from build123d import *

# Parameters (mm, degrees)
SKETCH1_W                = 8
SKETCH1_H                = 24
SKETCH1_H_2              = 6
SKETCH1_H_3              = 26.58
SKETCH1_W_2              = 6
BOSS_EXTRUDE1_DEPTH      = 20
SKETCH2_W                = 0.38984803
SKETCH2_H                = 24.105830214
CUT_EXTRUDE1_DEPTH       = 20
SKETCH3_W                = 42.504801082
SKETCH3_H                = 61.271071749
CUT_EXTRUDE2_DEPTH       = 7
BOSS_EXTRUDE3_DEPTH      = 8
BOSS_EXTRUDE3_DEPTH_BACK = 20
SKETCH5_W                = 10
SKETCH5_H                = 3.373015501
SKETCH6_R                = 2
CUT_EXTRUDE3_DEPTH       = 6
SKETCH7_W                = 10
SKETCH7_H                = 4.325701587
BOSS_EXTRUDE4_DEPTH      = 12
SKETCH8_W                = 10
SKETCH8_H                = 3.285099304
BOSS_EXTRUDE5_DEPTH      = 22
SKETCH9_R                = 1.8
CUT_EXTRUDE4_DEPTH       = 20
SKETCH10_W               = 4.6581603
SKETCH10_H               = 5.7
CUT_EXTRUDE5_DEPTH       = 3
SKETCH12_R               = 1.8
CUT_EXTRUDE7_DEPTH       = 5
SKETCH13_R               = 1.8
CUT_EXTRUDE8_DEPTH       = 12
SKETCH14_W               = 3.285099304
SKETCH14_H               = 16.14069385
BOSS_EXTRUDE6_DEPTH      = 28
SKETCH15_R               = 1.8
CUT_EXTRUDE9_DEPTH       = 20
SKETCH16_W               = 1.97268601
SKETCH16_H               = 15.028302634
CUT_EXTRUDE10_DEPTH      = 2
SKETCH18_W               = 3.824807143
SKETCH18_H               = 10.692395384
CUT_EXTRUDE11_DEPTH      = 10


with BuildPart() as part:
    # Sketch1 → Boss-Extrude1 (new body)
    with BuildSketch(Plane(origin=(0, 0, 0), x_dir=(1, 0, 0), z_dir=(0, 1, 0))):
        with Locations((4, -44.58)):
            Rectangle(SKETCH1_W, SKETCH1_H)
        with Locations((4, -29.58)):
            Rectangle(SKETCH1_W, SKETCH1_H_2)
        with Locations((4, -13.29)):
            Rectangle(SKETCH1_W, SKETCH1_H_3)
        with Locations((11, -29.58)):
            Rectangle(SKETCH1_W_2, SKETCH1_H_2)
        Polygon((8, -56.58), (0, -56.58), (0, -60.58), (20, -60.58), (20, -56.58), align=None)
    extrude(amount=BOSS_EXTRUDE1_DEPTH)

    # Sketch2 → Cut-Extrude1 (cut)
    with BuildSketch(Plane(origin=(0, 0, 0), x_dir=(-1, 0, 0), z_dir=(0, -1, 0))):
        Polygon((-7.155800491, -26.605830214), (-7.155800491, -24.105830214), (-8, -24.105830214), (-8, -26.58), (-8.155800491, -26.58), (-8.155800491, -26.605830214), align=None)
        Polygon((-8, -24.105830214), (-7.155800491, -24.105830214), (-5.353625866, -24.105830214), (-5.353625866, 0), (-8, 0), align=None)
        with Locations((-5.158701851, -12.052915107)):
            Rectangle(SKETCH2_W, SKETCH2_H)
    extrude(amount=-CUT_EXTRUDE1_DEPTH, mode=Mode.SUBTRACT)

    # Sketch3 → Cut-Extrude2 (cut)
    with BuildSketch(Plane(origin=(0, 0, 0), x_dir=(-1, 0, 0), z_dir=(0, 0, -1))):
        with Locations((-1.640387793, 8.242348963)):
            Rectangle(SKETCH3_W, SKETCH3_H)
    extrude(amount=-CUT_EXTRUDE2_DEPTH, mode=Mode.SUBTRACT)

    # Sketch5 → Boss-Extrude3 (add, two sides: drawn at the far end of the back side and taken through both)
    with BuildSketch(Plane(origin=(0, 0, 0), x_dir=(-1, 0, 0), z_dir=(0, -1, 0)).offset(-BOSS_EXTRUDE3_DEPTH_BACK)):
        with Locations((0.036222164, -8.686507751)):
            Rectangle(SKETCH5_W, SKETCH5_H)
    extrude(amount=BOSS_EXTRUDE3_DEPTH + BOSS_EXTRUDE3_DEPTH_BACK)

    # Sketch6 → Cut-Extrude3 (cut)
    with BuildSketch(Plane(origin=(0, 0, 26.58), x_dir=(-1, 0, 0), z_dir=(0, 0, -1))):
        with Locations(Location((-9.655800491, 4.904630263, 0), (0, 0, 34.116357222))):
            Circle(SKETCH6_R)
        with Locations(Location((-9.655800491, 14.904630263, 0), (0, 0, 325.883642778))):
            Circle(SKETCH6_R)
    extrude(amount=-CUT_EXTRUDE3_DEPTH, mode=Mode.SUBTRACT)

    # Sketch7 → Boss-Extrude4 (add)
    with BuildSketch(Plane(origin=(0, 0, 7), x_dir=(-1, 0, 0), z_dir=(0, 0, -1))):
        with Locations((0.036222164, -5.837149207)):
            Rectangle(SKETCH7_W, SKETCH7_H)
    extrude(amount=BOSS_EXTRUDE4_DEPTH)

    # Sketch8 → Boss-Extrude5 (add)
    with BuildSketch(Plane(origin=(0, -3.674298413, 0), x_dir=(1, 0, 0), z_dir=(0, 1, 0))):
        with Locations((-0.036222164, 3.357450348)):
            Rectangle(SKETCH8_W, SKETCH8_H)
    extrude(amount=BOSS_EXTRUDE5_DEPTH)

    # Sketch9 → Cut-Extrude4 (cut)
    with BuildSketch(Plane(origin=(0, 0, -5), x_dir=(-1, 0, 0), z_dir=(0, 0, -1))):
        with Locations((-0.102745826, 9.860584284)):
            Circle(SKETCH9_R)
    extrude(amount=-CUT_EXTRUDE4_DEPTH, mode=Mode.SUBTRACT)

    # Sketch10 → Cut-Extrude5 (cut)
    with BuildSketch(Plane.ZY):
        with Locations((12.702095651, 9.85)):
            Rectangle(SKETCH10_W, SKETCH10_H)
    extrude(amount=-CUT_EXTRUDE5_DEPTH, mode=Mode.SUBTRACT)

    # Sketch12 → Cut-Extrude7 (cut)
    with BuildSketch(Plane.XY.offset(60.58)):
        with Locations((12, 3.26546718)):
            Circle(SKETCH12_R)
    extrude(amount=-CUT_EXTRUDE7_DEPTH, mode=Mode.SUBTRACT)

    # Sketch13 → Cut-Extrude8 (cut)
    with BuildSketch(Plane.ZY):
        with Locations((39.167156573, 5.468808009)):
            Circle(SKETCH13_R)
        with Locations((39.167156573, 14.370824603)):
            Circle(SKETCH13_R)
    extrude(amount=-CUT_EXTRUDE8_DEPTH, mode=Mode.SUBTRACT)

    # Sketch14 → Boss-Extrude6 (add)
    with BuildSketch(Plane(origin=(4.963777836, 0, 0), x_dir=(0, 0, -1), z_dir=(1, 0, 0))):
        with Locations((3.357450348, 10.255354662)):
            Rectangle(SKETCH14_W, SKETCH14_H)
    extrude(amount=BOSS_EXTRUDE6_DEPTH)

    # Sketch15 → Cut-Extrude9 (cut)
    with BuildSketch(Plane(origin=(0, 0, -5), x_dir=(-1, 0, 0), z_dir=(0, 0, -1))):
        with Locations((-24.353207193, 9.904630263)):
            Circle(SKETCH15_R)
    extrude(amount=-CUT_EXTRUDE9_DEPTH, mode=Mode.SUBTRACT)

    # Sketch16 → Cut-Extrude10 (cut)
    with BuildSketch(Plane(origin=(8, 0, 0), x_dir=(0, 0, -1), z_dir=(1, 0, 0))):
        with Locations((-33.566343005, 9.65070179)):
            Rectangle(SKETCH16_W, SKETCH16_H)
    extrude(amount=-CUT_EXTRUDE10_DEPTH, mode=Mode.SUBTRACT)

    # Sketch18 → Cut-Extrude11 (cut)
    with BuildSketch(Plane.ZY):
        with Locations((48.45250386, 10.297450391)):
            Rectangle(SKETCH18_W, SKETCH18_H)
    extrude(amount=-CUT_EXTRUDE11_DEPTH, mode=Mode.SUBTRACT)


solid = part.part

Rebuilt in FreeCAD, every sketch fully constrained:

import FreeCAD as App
import Part
import Sketcher

V = App.Vector
Q = App.Units.Quantity

doc = App.newDocument("Part")
body = doc.addObject("PartDesign::Body", "Body")

sketch1 = doc.addObject("Sketcher::SketchObject", "Sketch")
body.addObject(sketch1)
sketch1.AttachmentSupport = (doc.XZ_Plane, [""])
sketch1.MapMode = "FlatFace"
sketch1.addGeometry([
    Part.LineSegment(V(8, 56.58, 0), V(8, 32.58, 0)),
    Part.LineSegment(V(8, 32.58, 0), V(14, 32.58, 0)),
    Part.LineSegment(V(14, 32.58, 0), V(14, 26.58, 0)),
    Part.LineSegment(V(14, 26.58, 0), V(8, 26.58, 0)),
    Part.LineSegment(V(8, 26.58, 0), V(8, 0, 0)),
    Part.LineSegment(V(8, 0, 0), V(0, 0, 0)),
    Part.LineSegment(V(0, 0, 0), V(0, 60.58, 0)),
    Part.LineSegment(V(0, 60.58, 0), V(20, 60.58, 0)),
    Part.LineSegment(V(20, 60.58, 0), V(20, 56.58, 0)),
    Part.LineSegment(V(20, 56.58, 0), V(8, 56.58, 0)),
], False)
sketch1.addConstraint([
    Sketcher.Constraint("Coincident", 0, 2, 1, 1),
    Sketcher.Constraint("Coincident", 1, 2, 2, 1),
    Sketcher.Constraint("Coincident", 2, 2, 3, 1),
    Sketcher.Constraint("Coincident", 3, 2, 4, 1),
    Sketcher.Constraint("Coincident", 4, 2, 5, 1),
    Sketcher.Constraint("Coincident", 5, 2, 6, 1),
    Sketcher.Constraint("Coincident", 6, 2, 7, 1),
    Sketcher.Constraint("Coincident", 7, 2, 8, 1),
    Sketcher.Constraint("Coincident", 8, 2, 9, 1),
    Sketcher.Constraint("Coincident", 9, 2, 0, 1),
    Sketcher.Constraint("Vertical", 0),
    Sketcher.Constraint("Horizontal", 1),
    Sketcher.Constraint("Vertical", 2),
    Sketcher.Constraint("Horizontal", 3),
    Sketcher.Constraint("Vertical", 4),
    Sketcher.Constraint("Horizontal", 5),
    Sketcher.Constraint("Vertical", 6),
    Sketcher.Constraint("Horizontal", 7),
    Sketcher.Constraint("Vertical", 8),
    Sketcher.Constraint("Horizontal", 9),
    Sketcher.Constraint("Coincident", 5, 2, -1, 1),
    Sketcher.Constraint("Vertical", 0, 2, 3, 2),
    Sketcher.Constraint("Equal", 3, 2),
    Sketcher.Constraint("DistanceX", 1, 1, 1, 2, Q("6 mm")),
    Sketcher.Constraint("DistanceX", 5, 2, 5, 1, Q("8 mm")),
    Sketcher.Constraint("DistanceX", 7, 1, 7, 2, Q("20 mm")),
    Sketcher.Constraint("DistanceY", 0, 2, 0, 1, Q("24 mm")),
    Sketcher.Constraint("DistanceY", 8, 2, 8, 1, Q("4 mm")),
    Sketcher.Constraint("DistanceY", 4, 2, 4, 1, Q("26.58 mm")),
])
pad1 = doc.addObject("PartDesign::Pad", "Pad")
body.addObject(pad1)
pad1.Profile = sketch1
pad1.Length = 20
pad1.Reversed = True

sketch2 = doc.addObject("Sketcher::SketchObject", "Sketch001")
body.addObject(sketch2)
sketch2.AttachmentSupport = (doc.XZ_Plane, [""])
sketch2.MapMode = "FlatFace"
sketch2.addGeometry([
    Part.LineSegment(V(7.1558, 26.60583, 0), V(7.1558, 24.10583, 0)),
    Part.LineSegment(V(7.1558, 24.10583, 0), V(4.963778, 24.10583, 0)),
    Part.LineSegment(V(4.963778, 24.10583, 0), V(4.963778, 0, 0)),
    Part.LineSegment(V(4.963778, 0, 0), V(8, 0, 0)),
    Part.LineSegment(V(8, 0, 0), V(8, 26.58, 0)),
    Part.LineSegment(V(8, 26.58, 0), V(8.1558, 26.58, 0)),
    Part.LineSegment(V(8.1558, 26.58, 0), V(8.1558, 26.60583, 0)),
    Part.LineSegment(V(8.1558, 26.60583, 0), V(7.1558, 26.60583, 0)),
], False)
sketch2.addConstraint([
    Sketcher.Constraint("Coincident", 0, 2, 1, 1),
    Sketcher.Constraint("Coincident", 1, 2, 2, 1),
    Sketcher.Constraint("Coincident", 2, 2, 3, 1),
    Sketcher.Constraint("Coincident", 3, 2, 4, 1),
    Sketcher.Constraint("Coincident", 4, 2, 5, 1),
    Sketcher.Constraint("Coincident", 5, 2, 6, 1),
    Sketcher.Constraint("Coincident", 6, 2, 7, 1),
    Sketcher.Constraint("Coincident", 7, 2, 0, 1),
    Sketcher.Constraint("Vertical", 0),
    Sketcher.Constraint("Horizontal", 1),
    Sketcher.Constraint("Vertical", 2),
    Sketcher.Constraint("Horizontal", 3),
    Sketcher.Constraint("Vertical", 4),
    Sketcher.Constraint("Horizontal", 5),
    Sketcher.Constraint("Vertical", 6),
    Sketcher.Constraint("Horizontal", 7),
    Sketcher.Constraint("PointOnObject", 2, 2, -1),
    Sketcher.Constraint("DistanceX", 7, 2, 7, 1, Q("1 mm")),
    Sketcher.Constraint("DistanceY", 0, 2, 0, 1, Q("2.5 mm")),
    Sketcher.Constraint("DistanceX", -1, 1, 3, 2, Q("8 mm")),
    Sketcher.Constraint("DistanceY", 4, 1, 4, 2, Q("26.58 mm")),
    Sketcher.Constraint("DistanceX", 5, 1, 5, 2, Q("0.1558 mm")),
    Sketcher.Constraint("DistanceY", 2, 2, 2, 1, Q("24.10583 mm")),
    Sketcher.Constraint("DistanceX", 1, 2, 1, 1, Q("2.192023 mm")),
])
pocket1 = doc.addObject("PartDesign::Pocket", "Pocket")
body.addObject(pocket1)
pocket1.Profile = sketch2
pocket1.Length = 20

sketch3 = doc.addObject("Sketcher::SketchObject", "Sketch002")
body.addObject(sketch3)
sketch3.AttachmentSupport = (doc.XY_Plane, [""])
sketch3.MapMode = "FlatFace"
sketch3.addGeometry([
    Part.LineSegment(V(22.892788, 38.877885, 0), V(22.892788, -22.393187, 0)),
    Part.LineSegment(V(22.892788, -22.393187, 0), V(-19.612013, -22.393187, 0)),
    Part.LineSegment(V(-19.612013, -22.393187, 0), V(-19.612013, 38.877885, 0)),
    Part.LineSegment(V(-19.612013, 38.877885, 0), V(22.892788, 38.877885, 0)),
], False)
sketch3.addConstraint([
    Sketcher.Constraint("Coincident", 0, 2, 1, 1),
    Sketcher.Constraint("Coincident", 1, 2, 2, 1),
    Sketcher.Constraint("Coincident", 2, 2, 3, 1),
    Sketcher.Constraint("Coincident", 3, 2, 0, 1),
    Sketcher.Constraint("Vertical", 0),
    Sketcher.Constraint("Horizontal", 1),
    Sketcher.Constraint("Vertical", 2),
    Sketcher.Constraint("Horizontal", 3),
    Sketcher.Constraint("DistanceX", 1, 2, 1, 1, Q("42.504801 mm")),
    Sketcher.Constraint("DistanceY", 0, 2, 0, 1, Q("61.271072 mm")),
    Sketcher.Constraint("DistanceX", -1, 1, 0, 2, Q("22.892788 mm")),
    Sketcher.Constraint("DistanceY", 0, 2, -1, 1, Q("22.393187 mm")),
])
pocket2 = doc.addObject("PartDesign::Pocket", "Pocket001")
body.addObject(pocket2)
pocket2.Profile = sketch3
pocket2.Length = 7
pocket2.Reversed = True

sketch4 = doc.addObject("Sketcher::SketchObject", "Sketch003")
body.addObject(sketch4)
sketch4.AttachmentSupport = (doc.XZ_Plane, [""])
sketch4.MapMode = "FlatFace"
sketch4.addGeometry([
    Part.LineSegment(V(4.963778, 7, 0), V(4.963778, 10.373016, 0)),
    Part.LineSegment(V(4.963778, 10.373016, 0), V(-5.036222, 10.373016, 0)),
    Part.LineSegment(V(-5.036222, 10.373016, 0), V(-5.036222, 7, 0)),
    Part.LineSegment(V(-5.036222, 7, 0), V(4.963778, 7, 0)),
], False)
sketch4.addConstraint([
    Sketcher.Constraint("Coincident", 0, 2, 1, 1),
    Sketcher.Constraint("Coincident", 1, 2, 2, 1),
    Sketcher.Constraint("Coincident", 2, 2, 3, 1),
    Sketcher.Constraint("Coincident", 3, 2, 0, 1),
    Sketcher.Constraint("Vertical", 0),
    Sketcher.Constraint("Horizontal", 1),
    Sketcher.Constraint("Vertical", 2),
    Sketcher.Constraint("Horizontal", 3),
    Sketcher.Constraint("DistanceX", 1, 2, 1, 1, Q("10 mm")),
    Sketcher.Constraint("DistanceY", -1, 1, 2, 2, Q("7 mm")),
    Sketcher.Constraint("DistanceY", 0, 1, 0, 2, Q("3.373016 mm")),
    Sketcher.Constraint("DistanceX", -1, 1, 0, 2, Q("4.963778 mm")),
])
pad2 = doc.addObject("PartDesign::Pad", "Pad001")
body.addObject(pad2)
pad2.Profile = sketch4
pad2.Type = "TwoLengths"
pad2.Length = 8
pad2.Length2 = 20

sketch5 = doc.addObject("Sketcher::SketchObject", "Sketch004")
body.addObject(sketch5)
sketch5.AttachmentSupport = (doc.XY_Plane, [""])
sketch5.MapMode = "FlatFace"
sketch5.AttachmentOffset = App.Placement(V(0, 0, 26.58), App.Rotation())
sketch5.addGeometry([
    Part.Circle(V(9.6558, 4.90463, 0), V(0, 0, 1), 2),
    Part.Circle(V(9.6558, 14.90463, 0), V(0, 0, 1), 2),
], False)
sketch5.addConstraint([
    Sketcher.Constraint("Equal", 0, 1),
    Sketcher.Constraint("Vertical", 0, 3, 1, 3),
    Sketcher.Constraint("Diameter", 0, Q("4 mm")),
    Sketcher.Constraint("DistanceY", 0, 3, 1, 3, Q("10 mm")),
    Sketcher.Constraint("DistanceX", -1, 1, 0, 3, Q("9.6558 mm")),
    Sketcher.Constraint("DistanceY", -1, 1, 0, 3, Q("4.90463 mm")),
])
pocket3 = doc.addObject("PartDesign::Pocket", "Pocket002")
body.addObject(pocket3)
pocket3.Profile = sketch5
pocket3.Length = 6
pocket3.Reversed = True

sketch6 = doc.addObject("Sketcher::SketchObject", "Sketch005")
body.addObject(sketch6)
sketch6.AttachmentSupport = (doc.XY_Plane, [""])
sketch6.MapMode = "FlatFace"
sketch6.AttachmentOffset = App.Placement(V(0, 0, 7), App.Rotation())
sketch6.addGeometry([
    Part.LineSegment(V(4.963778, -3.674298, 0), V(4.963778, -8, 0)),
    Part.LineSegment(V(4.963778, -8, 0), V(-5.036222, -8, 0)),
    Part.LineSegment(V(-5.036222, -8, 0), V(-5.036222, -3.674298, 0)),
    Part.LineSegment(V(-5.036222, -3.674298, 0), V(4.963778, -3.674298, 0)),
], False)
sketch6.addConstraint([
    Sketcher.Constraint("Coincident", 0, 2, 1, 1),
    Sketcher.Constraint("Coincident", 1, 2, 2, 1),
    Sketcher.Constraint("Coincident", 2, 2, 3, 1),
    Sketcher.Constraint("Coincident", 3, 2, 0, 1),
    Sketcher.Constraint("Vertical", 0),
    Sketcher.Constraint("Horizontal", 1),
    Sketcher.Constraint("Vertical", 2),
    Sketcher.Constraint("Horizontal", 3),
    Sketcher.Constraint("DistanceX", 1, 2, 1, 1, Q("10 mm")),
    Sketcher.Constraint("DistanceY", 0, 2, -1, 1, Q("8 mm")),
    Sketcher.Constraint("DistanceY", 0, 2, 0, 1, Q("4.325702 mm")),
    Sketcher.Constraint("DistanceX", -1, 1, 0, 2, Q("4.963778 mm")),
])
pad3 = doc.addObject("PartDesign::Pad", "Pad002")
body.addObject(pad3)
pad3.Profile = sketch6
pad3.Length = 12
pad3.Reversed = True

sketch7 = doc.addObject("Sketcher::SketchObject", "Sketch006")
body.addObject(sketch7)
sketch7.AttachmentSupport = (doc.XZ_Plane, [""])
sketch7.MapMode = "FlatFace"
sketch7.AttachmentOffset = App.Placement(V(0, 0, 3.674298), App.Rotation())
sketch7.addGeometry([
    Part.LineSegment(V(-5.036222, -5, 0), V(-5.036222, -1.714901, 0)),
    Part.LineSegment(V(-5.036222, -1.714901, 0), V(4.963778, -1.714901, 0)),
    Part.LineSegment(V(4.963778, -1.714901, 0), V(4.963778, -5, 0)),
    Part.LineSegment(V(4.963778, -5, 0), V(-5.036222, -5, 0)),
], False)
sketch7.addConstraint([
    Sketcher.Constraint("Coincident", 0, 2, 1, 1),
    Sketcher.Constraint("Coincident", 1, 2, 2, 1),
    Sketcher.Constraint("Coincident", 2, 2, 3, 1),
    Sketcher.Constraint("Coincident", 3, 2, 0, 1),
    Sketcher.Constraint("Vertical", 0),
    Sketcher.Constraint("Horizontal", 1),
    Sketcher.Constraint("Vertical", 2),
    Sketcher.Constraint("Horizontal", 3),
    Sketcher.Constraint("DistanceX", 1, 1, 1, 2, Q("10 mm")),
    Sketcher.Constraint("DistanceY", 2, 2, -1, 1, Q("5 mm")),
    Sketcher.Constraint("DistanceY", 0, 1, 0, 2, Q("3.285099 mm")),
    Sketcher.Constraint("DistanceX", 0, 2, -1, 1, Q("5.036222 mm")),
])
pad4 = doc.addObject("PartDesign::Pad", "Pad003")
body.addObject(pad4)
pad4.Profile = sketch7
pad4.Length = 22
pad4.Reversed = True

sketch8 = doc.addObject("Sketcher::SketchObject", "Sketch007")
body.addObject(sketch8)
sketch8.AttachmentSupport = (doc.XY_Plane, [""])
sketch8.MapMode = "FlatFace"
sketch8.AttachmentOffset = App.Placement(V(0, 0, -5), App.Rotation())
sketch8.addGeometry(Part.Circle(V(0.102746, 9.860584, 0), V(0, 0, 1), 1.8), False)
sketch8.addConstraint([
    Sketcher.Constraint("Diameter", 0, Q("3.6 mm")),
    Sketcher.Constraint("DistanceX", -1, 1, 0, 3, Q("0.102746 mm")),
    Sketcher.Constraint("DistanceY", -1, 1, 0, 3, Q("9.860584 mm")),
])
pocket4 = doc.addObject("PartDesign::Pocket", "Pocket003")
body.addObject(pocket4)
pocket4.Profile = sketch8
pocket4.Length = 20
pocket4.Reversed = True

sketch9 = doc.addObject("Sketcher::SketchObject", "Sketch008")
body.addObject(sketch9)
sketch9.AttachmentSupport = (doc.YZ_Plane, [""])
sketch9.MapMode = "FlatFace"
sketch9.addGeometry([
    Part.LineSegment(V(12.7, 10.373016, 0), V(7, 10.373016, 0)),
    Part.LineSegment(V(7, 10.373016, 0), V(7, 15.031176, 0)),
    Part.LineSegment(V(7, 15.031176, 0), V(12.7, 15.031176, 0)),
    Part.LineSegment(V(12.7, 15.031176, 0), V(12.7, 10.373016, 0)),
], False)
sketch9.addConstraint([
    Sketcher.Constraint("Coincident", 0, 2, 1, 1),
    Sketcher.Constraint("Coincident", 1, 2, 2, 1),
    Sketcher.Constraint("Coincident", 2, 2, 3, 1),
    Sketcher.Constraint("Coincident", 3, 2, 0, 1),
    Sketcher.Constraint("Horizontal", 0),
    Sketcher.Constraint("Vertical", 1),
    Sketcher.Constraint("Horizontal", 2),
    Sketcher.Constraint("Vertical", 3),
    Sketcher.Constraint("DistanceX", 0, 2, 0, 1, Q("5.7 mm")),
    Sketcher.Constraint("DistanceX", -1, 1, 0, 2, Q("7 mm")),
    Sketcher.Constraint("DistanceY", 1, 1, 1, 2, Q("4.65816 mm")),
    Sketcher.Constraint("DistanceY", -1, 1, 0, 2, Q("10.373016 mm")),
])
pocket5 = doc.addObject("PartDesign::Pocket", "Pocket004")
body.addObject(pocket5)
pocket5.Profile = sketch9
pocket5.Length = 3
pocket5.Reversed = True

sketch10 = doc.addObject("Sketcher::SketchObject", "Sketch009")
body.addObject(sketch10)
sketch10.AttachmentSupport = (doc.XY_Plane, [""])
sketch10.MapMode = "FlatFace"
sketch10.AttachmentOffset = App.Placement(V(0, 0, 60.58), App.Rotation())
sketch10.addGeometry(Part.Circle(V(12, 3.265467, 0), V(0, 0, 1), 1.8), False)
sketch10.addConstraint([
    Sketcher.Constraint("Diameter", 0, Q("3.6 mm")),
    Sketcher.Constraint("DistanceX", -1, 1, 0, 3, Q("12 mm")),
    Sketcher.Constraint("DistanceY", -1, 1, 0, 3, Q("3.265467 mm")),
])
pocket6 = doc.addObject("PartDesign::Pocket", "Pocket005")
body.addObject(pocket6)
pocket6.Profile = sketch10
pocket6.Length = 5

sketch11 = doc.addObject("Sketcher::SketchObject", "Sketch010")
body.addObject(sketch11)
sketch11.AttachmentSupport = (doc.YZ_Plane, [""])
sketch11.MapMode = "FlatFace"
sketch11.addGeometry([
    Part.Circle(V(5.468808, 39.167157, 0), V(0, 0, 1), 1.8),
    Part.Circle(V(14.370825, 39.167157, 0), V(0, 0, 1), 1.8),
], False)
sketch11.addConstraint([
    Sketcher.Constraint("Equal", 0, 1),
    Sketcher.Constraint("Horizontal", 0, 3, 1, 3),
    Sketcher.Constraint("Diameter", 0, Q("3.6 mm")),
    Sketcher.Constraint("DistanceX", -1, 1, 0, 3, Q("5.468808 mm")),
    Sketcher.Constraint("DistanceY", -1, 1, 0, 3, Q("39.167157 mm")),
    Sketcher.Constraint("DistanceX", -1, 1, 1, 3, Q("14.370825 mm")),
])
pocket7 = doc.addObject("PartDesign::Pocket", "Pocket006")
body.addObject(pocket7)
pocket7.Profile = sketch11
pocket7.Length = 12
pocket7.Reversed = True

sketch12 = doc.addObject("Sketcher::SketchObject", "Sketch011")
body.addObject(sketch12)
sketch12.AttachmentSupport = (doc.YZ_Plane, [""])
sketch12.MapMode = "FlatFace"
sketch12.AttachmentOffset = App.Placement(V(0, 0, 4.963778), App.Rotation())
sketch12.addGeometry([
    Part.LineSegment(V(18.325702, -1.714901, 0), V(2.185008, -1.714901, 0)),
    Part.LineSegment(V(2.185008, -1.714901, 0), V(2.185008, -5, 0)),
    Part.LineSegment(V(2.185008, -5, 0), V(18.325702, -5, 0)),
    Part.LineSegment(V(18.325702, -5, 0), V(18.325702, -1.714901, 0)),
], False)
sketch12.addConstraint([
    Sketcher.Constraint("Coincident", 0, 2, 1, 1),
    Sketcher.Constraint("Coincident", 1, 2, 2, 1),
    Sketcher.Constraint("Coincident", 2, 2, 3, 1),
    Sketcher.Constraint("Coincident", 3, 2, 0, 1),
    Sketcher.Constraint("Horizontal", 0),
    Sketcher.Constraint("Vertical", 1),
    Sketcher.Constraint("Horizontal", 2),
    Sketcher.Constraint("Vertical", 3),
    Sketcher.Constraint("DistanceY", 1, 2, -1, 1, Q("5 mm")),
    Sketcher.Constraint("DistanceY", 1, 2, 1, 1, Q("3.285099 mm")),
    Sketcher.Constraint("DistanceX", -1, 1, 2, 2, Q("18.325702 mm")),
    Sketcher.Constraint("DistanceX", 0, 2, 0, 1, Q("16.140694 mm")),
])
pad5 = doc.addObject("PartDesign::Pad", "Pad004")
body.addObject(pad5)
pad5.Profile = sketch12
pad5.Length = 28

sketch13 = doc.addObject("Sketcher::SketchObject", "Sketch012")
body.addObject(sketch13)
sketch13.AttachmentSupport = (doc.XY_Plane, [""])
sketch13.MapMode = "FlatFace"
sketch13.AttachmentOffset = App.Placement(V(0, 0, -5), App.Rotation())
sketch13.addGeometry(Part.Circle(V(24.353207, 9.90463, 0), V(0, 0, 1), 1.8), False)
sketch13.addConstraint([
    Sketcher.Constraint("Diameter", 0, Q("3.6 mm")),
    Sketcher.Constraint("DistanceY", -1, 1, 0, 3, Q("9.90463 mm")),
    Sketcher.Constraint("DistanceX", -1, 1, 0, 3, Q("24.353207 mm")),
])
pocket8 = doc.addObject("PartDesign::Pocket", "Pocket007")
body.addObject(pocket8)
pocket8.Profile = sketch13
pocket8.Length = 20
pocket8.Reversed = True

sketch14 = doc.addObject("Sketcher::SketchObject", "Sketch013")
body.addObject(sketch14)
sketch14.AttachmentSupport = (doc.YZ_Plane, [""])
sketch14.MapMode = "FlatFace"
sketch14.AttachmentOffset = App.Placement(V(0, 0, 8), App.Rotation())
sketch14.addGeometry([
    Part.LineSegment(V(17.164853, 34.552686, 0), V(2.13655, 34.552686, 0)),
    Part.LineSegment(V(2.13655, 34.552686, 0), V(2.13655, 32.58, 0)),
    Part.LineSegment(V(2.13655, 32.58, 0), V(17.164853, 32.58, 0)),
    Part.LineSegment(V(17.164853, 32.58, 0), V(17.164853, 34.552686, 0)),
], False)
sketch14.addConstraint([
    Sketcher.Constraint("Coincident", 0, 2, 1, 1),
    Sketcher.Constraint("Coincident", 1, 2, 2, 1),
    Sketcher.Constraint("Coincident", 2, 2, 3, 1),
    Sketcher.Constraint("Coincident", 3, 2, 0, 1),
    Sketcher.Constraint("Horizontal", 0),
    Sketcher.Constraint("Vertical", 1),
    Sketcher.Constraint("Horizontal", 2),
    Sketcher.Constraint("Vertical", 3),
    Sketcher.Constraint("DistanceY", -1, 1, 1, 2, Q("32.58 mm")),
    Sketcher.Constraint("DistanceX", 0, 2, 0, 1, Q("15.028303 mm")),
    Sketcher.Constraint("DistanceY", 1, 2, 1, 1, Q("1.972686 mm")),
    Sketcher.Constraint("DistanceX", -1, 1, 0, 2, Q("2.13655 mm")),
])
pocket9 = doc.addObject("PartDesign::Pocket", "Pocket008")
body.addObject(pocket9)
pocket9.Profile = sketch14
pocket9.Length = 2

sketch15 = doc.addObject("Sketcher::SketchObject", "Sketch014")
body.addObject(sketch15)
sketch15.AttachmentSupport = (doc.YZ_Plane, [""])
sketch15.MapMode = "FlatFace"
sketch15.addGeometry([
    Part.LineSegment(V(15.643648, 46.5401, 0), V(4.951253, 46.5401, 0)),
    Part.LineSegment(V(4.951253, 46.5401, 0), V(4.951253, 50.364907, 0)),
    Part.LineSegment(V(4.951253, 50.364907, 0), V(15.643648, 50.364907, 0)),
    Part.LineSegment(V(15.643648, 50.364907, 0), V(15.643648, 46.5401, 0)),
], False)
sketch15.addConstraint([
    Sketcher.Constraint("Coincident", 0, 2, 1, 1),
    Sketcher.Constraint("Coincident", 1, 2, 2, 1),
    Sketcher.Constraint("Coincident", 2, 2, 3, 1),
    Sketcher.Constraint("Coincident", 3, 2, 0, 1),
    Sketcher.Constraint("Horizontal", 0),
    Sketcher.Constraint("Vertical", 1),
    Sketcher.Constraint("Horizontal", 2),
    Sketcher.Constraint("Vertical", 3),
    Sketcher.Constraint("DistanceY", -1, 1, 0, 2, Q("46.5401 mm")),
    Sketcher.Constraint("DistanceX", 0, 2, 0, 1, Q("10.692395 mm")),
    Sketcher.Constraint("DistanceY", 1, 1, 1, 2, Q("3.824807 mm")),
    Sketcher.Constraint("DistanceX", -1, 1, 2, 2, Q("15.643648 mm")),
])
pocket10 = doc.addObject("PartDesign::Pocket", "Pocket009")
body.addObject(pocket10)
pocket10.Profile = sketch15
pocket10.Length = 10
pocket10.Reversed = True

doc.recompute()
